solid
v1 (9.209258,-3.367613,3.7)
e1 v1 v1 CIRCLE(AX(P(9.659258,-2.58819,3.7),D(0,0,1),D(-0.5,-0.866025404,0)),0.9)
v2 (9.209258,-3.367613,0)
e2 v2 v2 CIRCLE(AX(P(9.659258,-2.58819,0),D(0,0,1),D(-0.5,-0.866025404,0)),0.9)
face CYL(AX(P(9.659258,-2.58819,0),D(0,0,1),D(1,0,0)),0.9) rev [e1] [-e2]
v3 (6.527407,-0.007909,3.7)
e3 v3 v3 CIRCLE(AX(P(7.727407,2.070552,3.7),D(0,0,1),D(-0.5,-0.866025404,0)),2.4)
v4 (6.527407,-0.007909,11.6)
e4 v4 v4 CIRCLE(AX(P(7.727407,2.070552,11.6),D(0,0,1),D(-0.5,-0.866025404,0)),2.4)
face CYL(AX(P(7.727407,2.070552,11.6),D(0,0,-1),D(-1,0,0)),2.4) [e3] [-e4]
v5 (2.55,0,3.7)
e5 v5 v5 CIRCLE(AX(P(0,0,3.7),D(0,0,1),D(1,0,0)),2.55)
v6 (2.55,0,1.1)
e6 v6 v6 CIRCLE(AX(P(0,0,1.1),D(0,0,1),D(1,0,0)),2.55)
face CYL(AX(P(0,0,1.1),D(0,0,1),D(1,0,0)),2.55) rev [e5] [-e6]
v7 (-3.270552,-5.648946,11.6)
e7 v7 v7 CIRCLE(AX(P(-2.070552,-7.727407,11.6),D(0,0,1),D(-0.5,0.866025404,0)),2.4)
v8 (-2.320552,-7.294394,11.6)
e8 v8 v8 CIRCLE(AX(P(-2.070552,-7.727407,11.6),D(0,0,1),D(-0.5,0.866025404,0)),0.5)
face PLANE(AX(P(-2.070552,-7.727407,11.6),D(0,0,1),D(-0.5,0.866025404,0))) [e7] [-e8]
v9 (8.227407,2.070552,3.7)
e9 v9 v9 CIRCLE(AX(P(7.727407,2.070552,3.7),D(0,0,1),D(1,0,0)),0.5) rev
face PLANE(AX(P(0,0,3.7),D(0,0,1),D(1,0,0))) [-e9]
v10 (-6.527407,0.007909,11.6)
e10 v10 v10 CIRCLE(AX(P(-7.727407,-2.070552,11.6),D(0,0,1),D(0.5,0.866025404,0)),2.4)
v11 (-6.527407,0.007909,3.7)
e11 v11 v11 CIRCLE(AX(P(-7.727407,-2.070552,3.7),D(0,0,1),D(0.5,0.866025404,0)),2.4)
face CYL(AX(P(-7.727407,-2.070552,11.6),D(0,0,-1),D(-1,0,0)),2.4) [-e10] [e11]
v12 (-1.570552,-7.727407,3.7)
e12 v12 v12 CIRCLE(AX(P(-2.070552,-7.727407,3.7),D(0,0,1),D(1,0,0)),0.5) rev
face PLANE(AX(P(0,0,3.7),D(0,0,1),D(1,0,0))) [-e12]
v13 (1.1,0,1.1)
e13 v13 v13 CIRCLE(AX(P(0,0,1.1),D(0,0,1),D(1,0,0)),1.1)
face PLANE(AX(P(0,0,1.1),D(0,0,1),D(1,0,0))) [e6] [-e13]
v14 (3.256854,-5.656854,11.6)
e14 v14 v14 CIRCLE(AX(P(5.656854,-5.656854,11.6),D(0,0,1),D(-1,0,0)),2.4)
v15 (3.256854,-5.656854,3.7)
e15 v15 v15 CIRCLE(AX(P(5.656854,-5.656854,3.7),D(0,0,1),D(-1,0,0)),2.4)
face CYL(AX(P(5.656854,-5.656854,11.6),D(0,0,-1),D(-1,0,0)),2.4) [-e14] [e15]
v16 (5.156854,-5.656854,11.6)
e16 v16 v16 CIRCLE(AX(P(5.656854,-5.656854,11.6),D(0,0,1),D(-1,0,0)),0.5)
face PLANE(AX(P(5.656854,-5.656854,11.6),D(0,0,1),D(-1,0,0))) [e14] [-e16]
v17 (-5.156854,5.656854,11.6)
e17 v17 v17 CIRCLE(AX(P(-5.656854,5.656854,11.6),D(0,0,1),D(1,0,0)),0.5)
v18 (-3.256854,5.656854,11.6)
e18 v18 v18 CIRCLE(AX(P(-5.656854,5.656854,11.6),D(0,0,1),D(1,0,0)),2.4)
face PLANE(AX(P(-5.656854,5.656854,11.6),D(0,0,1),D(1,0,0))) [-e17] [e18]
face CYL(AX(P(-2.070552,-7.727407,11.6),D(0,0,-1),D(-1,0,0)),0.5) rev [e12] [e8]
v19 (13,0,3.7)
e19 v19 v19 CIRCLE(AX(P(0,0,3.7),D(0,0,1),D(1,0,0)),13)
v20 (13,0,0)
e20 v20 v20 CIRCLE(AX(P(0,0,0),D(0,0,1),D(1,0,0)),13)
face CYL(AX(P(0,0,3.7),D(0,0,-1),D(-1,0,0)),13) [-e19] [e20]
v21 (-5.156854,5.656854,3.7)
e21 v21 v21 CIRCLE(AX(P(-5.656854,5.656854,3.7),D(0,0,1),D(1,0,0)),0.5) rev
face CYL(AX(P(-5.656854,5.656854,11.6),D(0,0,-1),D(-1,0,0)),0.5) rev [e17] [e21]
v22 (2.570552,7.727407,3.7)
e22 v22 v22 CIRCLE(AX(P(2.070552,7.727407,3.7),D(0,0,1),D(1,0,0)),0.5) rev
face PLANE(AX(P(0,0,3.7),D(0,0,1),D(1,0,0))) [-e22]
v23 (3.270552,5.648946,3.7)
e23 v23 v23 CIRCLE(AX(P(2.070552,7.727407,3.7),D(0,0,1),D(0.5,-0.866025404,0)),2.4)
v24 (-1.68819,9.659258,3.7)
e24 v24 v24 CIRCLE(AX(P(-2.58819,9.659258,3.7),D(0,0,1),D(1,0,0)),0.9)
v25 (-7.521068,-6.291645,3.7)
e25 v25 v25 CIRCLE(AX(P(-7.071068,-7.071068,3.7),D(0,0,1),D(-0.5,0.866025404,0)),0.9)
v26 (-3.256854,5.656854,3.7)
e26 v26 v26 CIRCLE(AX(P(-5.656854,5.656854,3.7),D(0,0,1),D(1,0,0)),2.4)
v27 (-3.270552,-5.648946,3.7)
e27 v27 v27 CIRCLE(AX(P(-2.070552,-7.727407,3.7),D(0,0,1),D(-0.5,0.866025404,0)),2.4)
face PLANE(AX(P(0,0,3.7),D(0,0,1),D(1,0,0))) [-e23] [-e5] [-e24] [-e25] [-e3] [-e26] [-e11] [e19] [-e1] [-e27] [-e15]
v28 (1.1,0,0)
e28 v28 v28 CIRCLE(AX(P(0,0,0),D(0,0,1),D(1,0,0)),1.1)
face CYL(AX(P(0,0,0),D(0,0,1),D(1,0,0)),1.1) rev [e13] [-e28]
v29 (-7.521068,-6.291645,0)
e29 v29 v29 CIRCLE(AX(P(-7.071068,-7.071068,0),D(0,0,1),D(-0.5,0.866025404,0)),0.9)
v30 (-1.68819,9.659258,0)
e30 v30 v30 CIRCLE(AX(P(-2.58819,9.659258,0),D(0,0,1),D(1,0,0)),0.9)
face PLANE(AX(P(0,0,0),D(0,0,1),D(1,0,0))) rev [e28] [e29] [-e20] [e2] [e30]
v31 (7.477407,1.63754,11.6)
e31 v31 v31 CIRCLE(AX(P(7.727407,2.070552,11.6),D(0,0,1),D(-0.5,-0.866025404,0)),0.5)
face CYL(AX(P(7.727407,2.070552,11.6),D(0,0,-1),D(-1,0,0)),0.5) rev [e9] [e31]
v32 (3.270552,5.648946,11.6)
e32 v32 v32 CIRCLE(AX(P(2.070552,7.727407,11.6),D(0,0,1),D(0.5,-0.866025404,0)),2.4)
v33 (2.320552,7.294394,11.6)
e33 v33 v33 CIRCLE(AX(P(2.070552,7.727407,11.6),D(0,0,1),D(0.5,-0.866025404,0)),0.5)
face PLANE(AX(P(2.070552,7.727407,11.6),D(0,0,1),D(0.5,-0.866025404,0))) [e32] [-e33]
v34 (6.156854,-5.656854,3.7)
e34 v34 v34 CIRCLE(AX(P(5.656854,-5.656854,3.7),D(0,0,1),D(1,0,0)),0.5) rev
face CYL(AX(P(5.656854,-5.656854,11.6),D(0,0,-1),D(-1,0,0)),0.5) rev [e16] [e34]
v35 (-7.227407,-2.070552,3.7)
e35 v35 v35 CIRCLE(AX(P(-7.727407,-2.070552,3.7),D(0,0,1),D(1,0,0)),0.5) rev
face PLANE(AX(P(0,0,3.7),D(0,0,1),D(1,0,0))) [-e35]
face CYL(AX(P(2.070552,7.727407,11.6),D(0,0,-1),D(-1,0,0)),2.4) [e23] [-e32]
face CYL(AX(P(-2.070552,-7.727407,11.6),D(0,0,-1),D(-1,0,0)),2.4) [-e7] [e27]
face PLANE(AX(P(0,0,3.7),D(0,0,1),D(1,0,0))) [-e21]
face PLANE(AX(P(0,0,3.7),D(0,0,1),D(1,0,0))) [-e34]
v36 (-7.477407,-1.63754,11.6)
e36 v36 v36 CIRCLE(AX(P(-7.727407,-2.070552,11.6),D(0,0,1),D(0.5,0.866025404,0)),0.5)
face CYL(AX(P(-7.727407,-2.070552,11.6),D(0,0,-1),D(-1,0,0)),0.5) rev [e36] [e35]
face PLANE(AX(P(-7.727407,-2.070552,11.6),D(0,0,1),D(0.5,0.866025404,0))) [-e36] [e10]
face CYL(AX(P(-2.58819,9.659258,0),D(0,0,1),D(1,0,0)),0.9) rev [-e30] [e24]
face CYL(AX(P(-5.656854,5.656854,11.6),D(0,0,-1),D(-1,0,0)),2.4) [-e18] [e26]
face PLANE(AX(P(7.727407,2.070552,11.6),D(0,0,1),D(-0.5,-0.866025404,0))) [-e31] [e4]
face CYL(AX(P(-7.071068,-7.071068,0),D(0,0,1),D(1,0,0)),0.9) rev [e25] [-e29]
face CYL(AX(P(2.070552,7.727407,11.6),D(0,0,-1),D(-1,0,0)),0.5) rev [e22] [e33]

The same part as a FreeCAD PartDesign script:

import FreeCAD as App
import Part
import Sketcher
from FreeCAD import Vector
Q = App.Units.Quantity

doc = App.newDocument("Part")
body = doc.addObject("PartDesign::Body", "Body")

# Sketch on XY plane
sketch1 = doc.addObject("Sketcher::SketchObject", "Sketch")
body.addObject(sketch1)
sketch1.AttachmentSupport = (doc.XY_Plane, [""])
sketch1.MapMode = "FlatFace"
sketch1.addGeometry(Part.Circle(Vector(0, 0, 0), Vector(0, 0, 1), 13), False)
sketch1.addConstraint([
    Sketcher.Constraint("Coincident", 0, 3, -1, 1),
    Sketcher.Constraint("Diameter", 0, Q("26 mm")),
])
pad1 = doc.addObject("PartDesign::Pad", "Pad")
body.addObject(pad1)
pad1.Profile = sketch1
pad1.Length = 3.7

# Sketch on XY plane
sketch2 = doc.addObject("Sketcher::SketchObject", "Sketch001")
body.addObject(sketch2)
sketch2.AttachmentSupport = (doc.XY_Plane, [""])
sketch2.MapMode = "FlatFace"
sketch2.AttachmentOffset = App.Placement(Vector(0, 0, 3.7), App.Rotation())
sketch2.addGeometry([
    Part.Circle(Vector(-5.656854, 5.656854, 0), Vector(0, 0, 1), 2.4),
    Part.Circle(Vector(-5.656854, 5.656854, 0), Vector(0, 0, 1), 0.5),
], False)
sketch2.addConstraint([
    Sketcher.Constraint("Coincident", 1, 3, 0, 3),
    Sketcher.Constraint("Diameter", 1, Q("1 mm")),
    Sketcher.Constraint("Diameter", 0, Q("4.8 mm")),
    Sketcher.Constraint("DistanceX", 0, 3, -1, 1, Q("5.656854 mm")),
    Sketcher.Constraint("DistanceY", -1, 1, 0, 3, Q("5.656854 mm")),
])
pad2 = doc.addObject("PartDesign::Pad", "Pad001")
body.addObject(pad2)
pad2.Profile = sketch2
pad2.Length = 7.9
doc.recompute()

polarpattern = doc.addObject("PartDesign::PolarPattern", "PolarPattern")
body.addObject(polarpattern)
polarpattern.Originals = [pad2]
polarpattern.Axis = (doc.Z_Axis, [""])
polarpattern.Angle = 360
polarpattern.Occurrences = 6
body.Tip = polarpattern

# Sketch on XY plane
sketch3 = doc.addObject("Sketcher::SketchObject", "Sketch002")
body.addObject(sketch3)
sketch3.AttachmentSupport = (doc.XY_Plane, [""])
sketch3.MapMode = "FlatFace"
sketch3.AttachmentOffset = App.Placement(Vector(0, 0, 3.7), App.Rotation())
sketch3.addGeometry(Part.Circle(Vector(-2.58819, 9.659258, 0), Vector(0, 0, 1), 0.9), False)
sketch3.addConstraint([
    Sketcher.Constraint("Diameter", 0, Q("1.8 mm")),
    Sketcher.Constraint("DistanceX", 0, 3, -1, 1, Q("2.58819 mm")),
    Sketcher.Constraint("DistanceY", -1, 1, 0, 3, Q("9.659258 mm")),
])
pocket1 = doc.addObject("PartDesign::Pocket", "Pocket")
body.addObject(pocket1)
pocket1.Profile = sketch3
pocket1.Type = "ThroughAll"
doc.recompute()

polarpattern2 = doc.addObject("PartDesign::PolarPattern", "PolarPattern001")
body.addObject(polarpattern2)
polarpattern2.Originals = [pocket1]
polarpattern2.Axis = (doc.Z_Axis, [""])
polarpattern2.Angle = 360
polarpattern2.Occurrences = 3
body.Tip = polarpattern2

# Sketch on XY plane
sketch4 = doc.addObject("Sketcher::SketchObject", "Sketch003")
body.addObject(sketch4)
sketch4.AttachmentSupport = (doc.XY_Plane, [""])
sketch4.MapMode = "FlatFace"
sketch4.AttachmentOffset = App.Placement(Vector(0, 0, 3.7), App.Rotation())
sketch4.addGeometry(Part.Circle(Vector(0, 0, 0), Vector(0, 0, 1), 1.1), False)
sketch4.addConstraint([
    Sketcher.Constraint("Coincident", 0, 3, -1, 1),
    Sketcher.Constraint("Diameter", 0, Q("2.2 mm")),
])
pocket2 = doc.addObject("PartDesign::Pocket", "Pocket001")
body.addObject(pocket2)
pocket2.Profile = sketch4
pocket2.Type = "ThroughAll"

# Sketch on XY plane
sketch5 = doc.addObject("Sketcher::SketchObject", "Sketch004")
body.addObject(sketch5)
sketch5.AttachmentSupport = (doc.XY_Plane, [""])
sketch5.MapMode = "FlatFace"
sketch5.AttachmentOffset = App.Placement(Vector(0, 0, 3.7), App.Rotation())
sketch5.addGeometry([
    Part.Circle(Vector(0, 0, 0), Vector(0, 0, 1), 2.55),
    Part.Circle(Vector(0, 0, 0), Vector(0, 0, 1), 1.1),
], False)
sketch5.addConstraint([
    Sketcher.Constraint("Coincident", 0, 3, -1, 1),
    Sketcher.Constraint("Coincident", 1, 3, -1, 1),
    Sketcher.Constraint("Diameter", 0, Q("5.1 mm")),
    Sketcher.Constraint("Diameter", 1, Q("2.2 mm")),
])
pocket3 = doc.addObject("PartDesign::Pocket", "Pocket002")
body.addObject(pocket3)
pocket3.Profile = sketch5
pocket3.Length = 2.6

doc.recompute()
